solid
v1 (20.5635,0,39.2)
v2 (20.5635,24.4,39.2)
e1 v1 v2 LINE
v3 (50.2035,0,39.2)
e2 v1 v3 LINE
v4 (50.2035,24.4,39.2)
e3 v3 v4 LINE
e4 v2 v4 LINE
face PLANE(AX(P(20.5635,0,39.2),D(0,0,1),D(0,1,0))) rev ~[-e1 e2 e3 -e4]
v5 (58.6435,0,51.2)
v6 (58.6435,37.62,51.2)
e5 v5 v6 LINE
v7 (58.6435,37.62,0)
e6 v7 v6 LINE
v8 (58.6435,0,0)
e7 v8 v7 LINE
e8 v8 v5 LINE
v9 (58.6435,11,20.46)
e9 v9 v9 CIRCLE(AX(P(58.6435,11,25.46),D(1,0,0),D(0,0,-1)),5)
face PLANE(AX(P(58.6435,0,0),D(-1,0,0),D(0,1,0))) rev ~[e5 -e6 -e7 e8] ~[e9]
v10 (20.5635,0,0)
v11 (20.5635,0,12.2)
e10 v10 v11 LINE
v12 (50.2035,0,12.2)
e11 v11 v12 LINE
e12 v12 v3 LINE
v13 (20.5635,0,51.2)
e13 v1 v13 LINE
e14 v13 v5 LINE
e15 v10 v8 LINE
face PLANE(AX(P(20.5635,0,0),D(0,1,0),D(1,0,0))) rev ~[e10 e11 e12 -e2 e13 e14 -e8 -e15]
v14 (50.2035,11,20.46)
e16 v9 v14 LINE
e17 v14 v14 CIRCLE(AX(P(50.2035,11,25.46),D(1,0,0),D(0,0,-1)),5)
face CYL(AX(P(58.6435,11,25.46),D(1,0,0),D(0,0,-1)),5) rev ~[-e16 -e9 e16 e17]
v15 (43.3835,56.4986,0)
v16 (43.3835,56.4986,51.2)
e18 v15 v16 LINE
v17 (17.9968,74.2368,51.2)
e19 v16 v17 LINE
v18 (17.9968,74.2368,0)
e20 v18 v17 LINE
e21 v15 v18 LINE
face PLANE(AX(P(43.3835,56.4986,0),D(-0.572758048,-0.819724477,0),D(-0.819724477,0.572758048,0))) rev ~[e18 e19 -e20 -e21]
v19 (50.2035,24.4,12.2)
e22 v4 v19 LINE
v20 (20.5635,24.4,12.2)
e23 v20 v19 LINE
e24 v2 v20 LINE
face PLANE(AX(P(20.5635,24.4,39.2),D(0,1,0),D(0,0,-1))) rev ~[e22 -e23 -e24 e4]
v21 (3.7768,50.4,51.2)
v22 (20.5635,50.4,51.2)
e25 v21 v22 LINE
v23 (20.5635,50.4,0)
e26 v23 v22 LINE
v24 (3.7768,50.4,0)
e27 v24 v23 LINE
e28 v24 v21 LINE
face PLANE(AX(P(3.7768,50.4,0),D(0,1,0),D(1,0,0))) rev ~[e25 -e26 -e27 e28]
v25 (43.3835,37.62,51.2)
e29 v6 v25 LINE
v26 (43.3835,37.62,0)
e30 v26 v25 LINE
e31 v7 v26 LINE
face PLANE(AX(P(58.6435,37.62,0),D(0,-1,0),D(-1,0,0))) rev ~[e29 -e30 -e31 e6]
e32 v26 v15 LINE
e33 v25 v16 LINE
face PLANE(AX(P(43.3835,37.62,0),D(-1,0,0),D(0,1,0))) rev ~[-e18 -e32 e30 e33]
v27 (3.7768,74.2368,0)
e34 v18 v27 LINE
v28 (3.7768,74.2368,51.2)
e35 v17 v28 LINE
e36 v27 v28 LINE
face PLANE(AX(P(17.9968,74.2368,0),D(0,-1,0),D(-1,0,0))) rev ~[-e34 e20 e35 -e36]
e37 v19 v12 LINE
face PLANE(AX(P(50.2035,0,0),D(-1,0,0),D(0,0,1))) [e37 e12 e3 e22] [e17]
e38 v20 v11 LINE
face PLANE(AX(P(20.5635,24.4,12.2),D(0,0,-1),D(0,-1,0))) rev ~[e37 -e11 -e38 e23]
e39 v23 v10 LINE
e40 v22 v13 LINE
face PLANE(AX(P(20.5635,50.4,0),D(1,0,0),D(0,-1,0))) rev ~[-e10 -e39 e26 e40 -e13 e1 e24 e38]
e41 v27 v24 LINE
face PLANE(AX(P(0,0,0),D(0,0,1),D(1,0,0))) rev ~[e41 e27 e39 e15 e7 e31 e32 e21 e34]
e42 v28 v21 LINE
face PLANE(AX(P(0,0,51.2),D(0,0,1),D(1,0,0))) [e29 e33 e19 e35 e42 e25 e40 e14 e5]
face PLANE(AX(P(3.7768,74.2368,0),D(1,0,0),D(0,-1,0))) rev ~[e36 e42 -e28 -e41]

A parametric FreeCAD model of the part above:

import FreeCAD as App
import Part
import Sketcher
from FreeCAD import Vector
Q = App.Units.Quantity

doc = App.newDocument("Part")
body = doc.addObject("PartDesign::Body", "Body")

# Sketch on XY plane
sketch1 = doc.addObject("Sketcher::SketchObject", "Sketch")
body.addObject(sketch1)
sketch1.AttachmentSupport = (doc.XY_Plane, [""])
sketch1.MapMode = "FlatFace"
sketch1.addGeometry([
    Part.LineSegment(Vector(21, 50, 0), Vector(21, 0, 0)),  # 0
    Part.LineSegment(Vector(21, 0, 0), Vector(59, 0, 0)),  # 1
    Part.LineSegment(Vector(59, 0, 0), Vector(59, 38, 0)),  # 2
    Part.LineSegment(Vector(59, 38, 0), Vector(43, 38, 0)),  # 3
    Part.LineSegment(Vector(43, 38, 0), Vector(43, 56, 0)),  # 4
    Part.LineSegment(Vector(43, 56, 0), Vector(18, 74, 0)),  # 5
    Part.LineSegment(Vector(18, 74, 0), Vector(4, 74, 0)),  # 6
    Part.LineSegment(Vector(4, 74, 0), Vector(4, 50, 0)),  # 7
    Part.LineSegment(Vector(4, 50, 0), Vector(21, 50, 0)),  # 8
], False)
sketch1.addConstraint([
    Sketcher.Constraint("Coincident", 0, 2, 1, 1),
    Sketcher.Constraint("Coincident", 1, 2, 2, 1),
    Sketcher.Constraint("Coincident", 2, 2, 3, 1),
    Sketcher.Constraint("Coincident", 3, 2, 4, 1),
    Sketcher.Constraint("Coincident", 4, 2, 5, 1),
    Sketcher.Constraint("Coincident", 5, 2, 6, 1),
    Sketcher.Constraint("Coincident", 6, 2, 7, 1),
    Sketcher.Constraint("Coincident", 7, 2, 8, 1),
    Sketcher.Constraint("Coincident", 8, 2, 0, 1),
    Sketcher.Constraint("Vertical", 0),
    Sketcher.Constraint("Horizontal", 1),
    Sketcher.Constraint("Vertical", 2),
    Sketcher.Constraint("Horizontal", 3),
    Sketcher.Constraint("Vertical", 4),
    Sketcher.Constraint("Horizontal", 6),
    Sketcher.Constraint("Vertical", 7),
    Sketcher.Constraint("Horizontal", 8),
    Sketcher.Constraint("PointOnObject", 0, 2, -1),
    Sketcher.Constraint("DistanceY", 0, 2, 0, 1, Q("50.4 mm")),
    Sketcher.Constraint("DistanceX", 1, 1, 1, 2, Q("38.08 mm")),
    Sketcher.Constraint("DistanceX", 3, 2, 3, 1, Q("15.26 mm")),
    Sketcher.Constraint("DistanceX", 6, 2, 6, 1, Q("14.22 mm")),
    Sketcher.Constraint("DistanceY", 2, 1, 2, 2, Q("37.62 mm")),
    Sketcher.Constraint("DistanceX", 8, 1, 8, 2, Q("16.7867 mm")),
    Sketcher.Constraint("DistanceY", 4, 1, 4, 2, Q("18.8786 mm")),
    Sketcher.Constraint("DistanceY", 7, 2, 7, 1, Q("23.8368 mm")),
    Sketcher.Constraint("DistanceX", -1, 1, 0, 2, Q("20.5635 mm")),
])
pad1 = doc.addObject("PartDesign::Pad", "Pad")
body.addObject(pad1)
pad1.Profile = sketch1
pad1.Length = 51.2

# Sketch on YZ plane
sketch2 = doc.addObject("Sketcher::SketchObject", "Sketch001")
body.addObject(sketch2)
sketch2.AttachmentSupport = (doc.YZ_Plane, [""])
sketch2.MapMode = "FlatFace"
sketch2.AttachmentOffset = App.Placement(Vector(0, 0, 58.6435), App.Rotation())
sketch2.addGeometry(Part.Circle(Vector(11, 25, 0), Vector(0, 0, 1), 5), False)
sketch2.addConstraint([
    Sketcher.Constraint("Diameter", 0, Q("10 mm")),
    Sketcher.Constraint("DistanceX", -1, 1, 0, 3, Q("11 mm")),
    Sketcher.Constraint("DistanceY", -1, 1, 0, 3, Q("25.46 mm")),
])
pocket1 = doc.addObject("PartDesign::Pocket", "Pocket")
body.addObject(pocket1)
pocket1.Profile = sketch2
pocket1.Length = 51.2

# Sketch on YZ plane
sketch3 = doc.addObject("Sketcher::SketchObject", "Sketch002")
body.addObject(sketch3)
sketch3.AttachmentSupport = (doc.YZ_Plane, [""])
sketch3.MapMode = "FlatFace"
sketch3.AttachmentOffset = App.Placement(Vector(0, 0, 20.5635), App.Rotation())
sketch3.addGeometry([
    Part.LineSegment(Vector(-5, 39, 0), Vector(24, 39, 0)),
    Part.LineSegment(Vector(24, 39, 0), Vector(24, 12, 0)),
    Part.LineSegment(Vector(24, 12, 0), Vector(-12, 12, 0)),
    Part.LineSegment(Vector(-12, 12, 0), Vector(-5, 39, 0)),
], False)
sketch3.addConstraint([
    Sketcher.Constraint("Coincident", 0, 2, 1, 1),
    Sketcher.Constraint("Coincident", 1, 2, 2, 1),
    Sketcher.Constraint("Coincident", 2, 2, 3, 1),
    Sketcher.Constraint("Coincident", 3, 2, 0, 1),
    Sketcher.Constraint("Horizontal", 0),
    Sketcher.Constraint("Vertical", 1),
    Sketcher.Constraint("Horizontal", 2),
    Sketcher.Constraint("DistanceY", 1, 2, 1, 1, Q("27 mm")),
    Sketcher.Constraint("DistanceX", -1, 1, 0, 2, Q("24.4 mm")),
    Sketcher.Constraint("DistanceY", -1, 1, 0, 2, Q("39.2 mm")),
    Sketcher.Constraint("DistanceX", 0, 1, 0, 2, Q("29.1386 mm")),
    Sketcher.Constraint("DistanceX", 2, 2, 2, 1, Q("36.6233 mm")),
])
pocket2 = doc.addObject("PartDesign::Pocket", "Pocket001")
body.addObject(pocket2)
pocket2.Profile = sketch3
pocket2.Length = 29.64
pocket2.Reversed = True

doc.recompute()
